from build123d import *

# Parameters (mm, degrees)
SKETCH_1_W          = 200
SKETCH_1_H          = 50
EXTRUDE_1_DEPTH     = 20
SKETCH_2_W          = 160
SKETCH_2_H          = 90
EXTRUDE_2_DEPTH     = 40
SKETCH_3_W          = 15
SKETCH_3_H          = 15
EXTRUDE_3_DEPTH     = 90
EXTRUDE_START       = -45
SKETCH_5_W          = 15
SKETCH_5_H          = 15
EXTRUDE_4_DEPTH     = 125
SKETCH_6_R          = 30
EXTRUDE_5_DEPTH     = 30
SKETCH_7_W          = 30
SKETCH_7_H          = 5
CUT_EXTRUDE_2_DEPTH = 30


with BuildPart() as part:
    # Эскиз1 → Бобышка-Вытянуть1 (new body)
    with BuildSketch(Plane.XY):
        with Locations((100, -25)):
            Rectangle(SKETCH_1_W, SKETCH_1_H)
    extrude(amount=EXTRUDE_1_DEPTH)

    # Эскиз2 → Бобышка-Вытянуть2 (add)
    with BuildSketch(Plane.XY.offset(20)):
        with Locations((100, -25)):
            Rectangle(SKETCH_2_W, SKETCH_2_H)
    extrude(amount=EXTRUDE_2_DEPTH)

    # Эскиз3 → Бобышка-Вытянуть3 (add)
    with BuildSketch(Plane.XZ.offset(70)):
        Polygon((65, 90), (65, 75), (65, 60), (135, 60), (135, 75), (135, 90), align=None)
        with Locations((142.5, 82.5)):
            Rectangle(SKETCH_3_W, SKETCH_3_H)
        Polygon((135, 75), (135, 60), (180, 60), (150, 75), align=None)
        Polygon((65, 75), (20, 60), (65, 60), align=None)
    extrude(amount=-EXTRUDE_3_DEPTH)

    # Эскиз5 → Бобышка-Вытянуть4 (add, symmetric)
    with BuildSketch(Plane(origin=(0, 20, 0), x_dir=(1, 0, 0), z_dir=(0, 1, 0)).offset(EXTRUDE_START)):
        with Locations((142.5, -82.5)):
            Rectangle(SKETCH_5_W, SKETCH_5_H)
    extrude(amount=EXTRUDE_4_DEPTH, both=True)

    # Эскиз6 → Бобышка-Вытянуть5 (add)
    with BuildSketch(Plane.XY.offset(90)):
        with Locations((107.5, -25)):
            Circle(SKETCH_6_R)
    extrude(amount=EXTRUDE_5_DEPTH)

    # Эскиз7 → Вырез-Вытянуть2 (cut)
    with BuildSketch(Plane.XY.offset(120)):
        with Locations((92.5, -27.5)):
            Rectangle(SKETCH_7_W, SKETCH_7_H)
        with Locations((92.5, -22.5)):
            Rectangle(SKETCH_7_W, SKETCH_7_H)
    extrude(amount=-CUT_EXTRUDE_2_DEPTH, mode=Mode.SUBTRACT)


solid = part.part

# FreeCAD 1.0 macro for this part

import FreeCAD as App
import Part
import Sketcher

V = App.Vector
Q = App.Units.Quantity

doc = App.newDocument("Part")
body = doc.addObject("PartDesign::Body", "Body")

# Sketch on XY plane
sketch1 = doc.addObject("Sketcher::SketchObject", "Sketch")
body.addObject(sketch1)
sketch1.AttachmentSupport = (doc.XY_Plane, [""])
sketch1.MapMode = "FlatFace"
sketch1.addGeometry([
    Part.LineSegment(V(0, 0, 0), V(0, -50, 0)),
    Part.LineSegment(V(0, -50, 0), V(200, -50, 0)),
    Part.LineSegment(V(200, -50, 0), V(200, 0, 0)),
    Part.LineSegment(V(200, 0, 0), V(0, 0, 0)),
], False)
sketch1.addConstraint([
    Sketcher.Constraint("Coincident", 0, 2, 1, 1),
    Sketcher.Constraint("Coincident", 1, 2, 2, 1),
    Sketcher.Constraint("Coincident", 2, 2, 3, 1),
    Sketcher.Constraint("Coincident", 3, 2, 0, 1),
    Sketcher.Constraint("Vertical", 0),
    Sketcher.Constraint("Horizontal", 1),
    Sketcher.Constraint("Vertical", 2),
    Sketcher.Constraint("Horizontal", 3),
    Sketcher.Constraint("Coincident", 3, 2, -1, 1),
    Sketcher.Constraint("DistanceX", 1, 1, 1, 2, Q("200 mm")),
    Sketcher.Constraint("DistanceY", 0, 2, 0, 1, Q("50 mm")),
])
pad1 = doc.addObject("PartDesign::Pad", "Pad")
body.addObject(pad1)
pad1.Profile = sketch1
pad1.Length = 20

# Sketch on XY plane
sketch2 = doc.addObject("Sketcher::SketchObject", "Sketch001")
body.addObject(sketch2)
sketch2.AttachmentSupport = (doc.XY_Plane, [""])
sketch2.MapMode = "FlatFace"
sketch2.AttachmentOffset = App.Placement(V(0, 0, 20), App.Rotation())
sketch2.addGeometry([
    Part.LineSegment(V(20, 20, 0), V(20, -70, 0)),
    Part.LineSegment(V(20, -70, 0), V(180, -70, 0)),
    Part.LineSegment(V(180, -70, 0), V(180, 20, 0)),
    Part.LineSegment(V(180, 20, 0), V(20, 20, 0)),
], False)
sketch2.addConstraint([
    Sketcher.Constraint("Coincident", 0, 2, 1, 1),
    Sketcher.Constraint("Coincident", 1, 2, 2, 1),
    Sketcher.Constraint("Coincident", 2, 2, 3, 1),
    Sketcher.Constraint("Coincident", 3, 2, 0, 1),
    Sketcher.Constraint("Vertical", 0),
    Sketcher.Constraint("Horizontal", 1),
    Sketcher.Constraint("Vertical", 2),
    Sketcher.Constraint("Horizontal", 3),
    Sketcher.Constraint("DistanceX", 1, 1, 1, 2, Q("160 mm")),
    Sketcher.Constraint("DistanceY", 0, 2, 0, 1, Q("90 mm")),
    Sketcher.Constraint("DistanceX", -1, 1, 0, 2, Q("20 mm")),
    Sketcher.Constraint("DistanceY", 0, 2, -1, 1, Q("70 mm")),
])
pad2 = doc.addObject("PartDesign::Pad", "Pad001")
body.addObject(pad2)
pad2.Profile = sketch2
pad2.Length = 40

# Sketch on XZ plane
sketch3 = doc.addObject("Sketcher::SketchObject", "Sketch002")
body.addObject(sketch3)
sketch3.AttachmentSupport = (doc.XZ_Plane, [""])
sketch3.MapMode = "FlatFace"
sketch3.AttachmentOffset = App.Placement(V(0, 0, 70), App.Rotation())
sketch3.addGeometry([
    Part.LineSegment(V(65, 90, 0), V(65, 75, 0)),  # 0
    Part.LineSegment(V(65, 75, 0), V(20, 60, 0)),  # 1
    Part.LineSegment(V(20, 60, 0), V(180, 60, 0)),  # 2
    Part.LineSegment(V(180, 60, 0), V(150, 75, 0)),  # 3
    Part.LineSegment(V(150, 75, 0), V(150, 90, 0)),  # 4
    Part.LineSegment(V(150, 90, 0), V(65, 90, 0)),  # 5
], False)
sketch3.addConstraint([
    Sketcher.Constraint("Coincident", 0, 2, 1, 1),
    Sketcher.Constraint("Coincident", 1, 2, 2, 1),
    Sketcher.Constraint("Coincident", 2, 2, 3, 1),
    Sketcher.Constraint("Coincident", 3, 2, 4, 1),
    Sketcher.Constraint("Coincident", 4, 2, 5, 1),
    Sketcher.Constraint("Coincident", 5, 2, 0, 1),
    Sketcher.Constraint("Vertical", 0),
    Sketcher.Constraint("Horizontal", 2),
    Sketcher.Constraint("Vertical", 4),
    Sketcher.Constraint("Horizontal", 5),
    Sketcher.Constraint("Horizontal", 0, 2, 3, 2),
    Sketcher.Constraint("DistanceX", 2, 1, 2, 2, Q("160 mm")),
    Sketcher.Constraint("DistanceX", 5, 2, 5, 1, Q("85 mm")),
    Sketcher.Constraint("DistanceY", 0, 2, 0, 1, Q("15 mm")),
    Sketcher.Constraint("DistanceX", -1, 1, 0, 2, Q("65 mm")),
    Sketcher.Constraint("DistanceY", -1, 1, 0, 2, Q("75 mm")),
    Sketcher.Constraint("DistanceX", -1, 1, 1, 2, Q("20 mm")),
    Sketcher.Constraint("DistanceY", -1, 1, 1, 2, Q("60 mm")),
])
pad3 = doc.addObject("PartDesign::Pad", "Pad002")
body.addObject(pad3)
pad3.Profile = sketch3
pad3.Length = 90
pad3.Reversed = True

# Sketch on XZ plane
sketch4 = doc.addObject("Sketcher::SketchObject", "Sketch003")
body.addObject(sketch4)
sketch4.AttachmentSupport = (doc.XZ_Plane, [""])
sketch4.MapMode = "FlatFace"
sketch4.AttachmentOffset = App.Placement(V(0, 0, 25), App.Rotation())
sketch4.addGeometry([
    Part.LineSegment(V(135, 75, 0), V(135, 90, 0)),
    Part.LineSegment(V(135, 90, 0), V(150, 90, 0)),
    Part.LineSegment(V(150, 90, 0), V(150, 75, 0)),
    Part.LineSegment(V(150, 75, 0), V(135, 75, 0)),
], False)
sketch4.addConstraint([
    Sketcher.Constraint("Coincident", 0, 2, 1, 1),
    Sketcher.Constraint("Coincident", 1, 2, 2, 1),
    Sketcher.Constraint("Coincident", 2, 2, 3, 1),
    Sketcher.Constraint("Coincident", 3, 2, 0, 1),
    Sketcher.Constraint("Vertical", 0),
    Sketcher.Constraint("Horizontal", 1),
    Sketcher.Constraint("Vertical", 2),
    Sketcher.Constraint("Horizontal", 3),
    Sketcher.Constraint("Equal", 3, 0),
    Sketcher.Constraint("DistanceX", 1, 1, 1, 2, Q("15 mm")),
    Sketcher.Constraint("DistanceX", -1, 1, 0, 2, Q("135 mm")),
    Sketcher.Constraint("DistanceY", -1, 1, 0, 2, Q("90 mm")),
])
pad4 = doc.addObject("PartDesign::Pad", "Pad003")
body.addObject(pad4)
pad4.Profile = sketch4
pad4.Length = 250
pad4.Midplane = True

# Sketch on XY plane
sketch5 = doc.addObject("Sketcher::SketchObject", "Sketch004")
body.addObject(sketch5)
sketch5.AttachmentSupport = (doc.XY_Plane, [""])
sketch5.MapMode = "FlatFace"
sketch5.AttachmentOffset = App.Placement(V(0, 0, 90), App.Rotation())
sketch5.addGeometry(Part.Circle(V(108, -25, 0), V(0, 0, 1), 30), False)
sketch5.addConstraint([
    Sketcher.Constraint("Diameter", 0, Q("60 mm")),
    Sketcher.Constraint("DistanceY", 0, 3, -1, 1, Q("25 mm")),
    Sketcher.Constraint("DistanceX", -1, 1, 0, 3, Q("107.5 mm")),
])
pad5 = doc.addObject("PartDesign::Pad", "Pad004")
body.addObject(pad5)
pad5.Profile = sketch5
pad5.Length = 30

# Sketch on XY plane
sketch6 = doc.addObject("Sketcher::SketchObject", "Sketch005")
body.addObject(sketch6)
sketch6.AttachmentSupport = (doc.XY_Plane, [""])
sketch6.MapMode = "FlatFace"
sketch6.AttachmentOffset = App.Placement(V(0, 0, 120), App.Rotation())
sketch6.addGeometry([
    Part.LineSegment(V(78, -30, 0), V(108, -30, 0)),
    Part.LineSegment(V(108, -30, 0), V(108, -20, 0)),
    Part.LineSegment(V(108, -20, 0), V(78, -20, 0)),
    Part.LineSegment(V(78, -20, 0), V(78, -30, 0)),
], False)
sketch6.addConstraint([
    Sketcher.Constraint("Coincident", 0, 2, 1, 1),
    Sketcher.Constraint("Coincident", 1, 2, 2, 1),
    Sketcher.Constraint("Coincident", 2, 2, 3, 1),
    Sketcher.Constraint("Coincident", 3, 2, 0, 1),
    Sketcher.Constraint("Horizontal", 0),
    Sketcher.Constraint("Vertical", 1),
    Sketcher.Constraint("Horizontal", 2),
    Sketcher.Constraint("Vertical", 3),
    Sketcher.Constraint("DistanceX", 0, 1, 0, 2, Q("30 mm")),
    Sketcher.Constraint("DistanceY", 1, 1, 1, 2, Q("10 mm")),
    Sketcher.Constraint("DistanceY", 0, 2, -1, 1, Q("30 mm")),
    Sketcher.Constraint("DistanceX", -1, 1, 0, 2, Q("107.5 mm")),
])
pocket1 = doc.addObject("PartDesign::Pocket", "Pocket")
body.addObject(pocket1)
pocket1.Profile = sketch6
pocket1.Length = 30

doc.recompute()
